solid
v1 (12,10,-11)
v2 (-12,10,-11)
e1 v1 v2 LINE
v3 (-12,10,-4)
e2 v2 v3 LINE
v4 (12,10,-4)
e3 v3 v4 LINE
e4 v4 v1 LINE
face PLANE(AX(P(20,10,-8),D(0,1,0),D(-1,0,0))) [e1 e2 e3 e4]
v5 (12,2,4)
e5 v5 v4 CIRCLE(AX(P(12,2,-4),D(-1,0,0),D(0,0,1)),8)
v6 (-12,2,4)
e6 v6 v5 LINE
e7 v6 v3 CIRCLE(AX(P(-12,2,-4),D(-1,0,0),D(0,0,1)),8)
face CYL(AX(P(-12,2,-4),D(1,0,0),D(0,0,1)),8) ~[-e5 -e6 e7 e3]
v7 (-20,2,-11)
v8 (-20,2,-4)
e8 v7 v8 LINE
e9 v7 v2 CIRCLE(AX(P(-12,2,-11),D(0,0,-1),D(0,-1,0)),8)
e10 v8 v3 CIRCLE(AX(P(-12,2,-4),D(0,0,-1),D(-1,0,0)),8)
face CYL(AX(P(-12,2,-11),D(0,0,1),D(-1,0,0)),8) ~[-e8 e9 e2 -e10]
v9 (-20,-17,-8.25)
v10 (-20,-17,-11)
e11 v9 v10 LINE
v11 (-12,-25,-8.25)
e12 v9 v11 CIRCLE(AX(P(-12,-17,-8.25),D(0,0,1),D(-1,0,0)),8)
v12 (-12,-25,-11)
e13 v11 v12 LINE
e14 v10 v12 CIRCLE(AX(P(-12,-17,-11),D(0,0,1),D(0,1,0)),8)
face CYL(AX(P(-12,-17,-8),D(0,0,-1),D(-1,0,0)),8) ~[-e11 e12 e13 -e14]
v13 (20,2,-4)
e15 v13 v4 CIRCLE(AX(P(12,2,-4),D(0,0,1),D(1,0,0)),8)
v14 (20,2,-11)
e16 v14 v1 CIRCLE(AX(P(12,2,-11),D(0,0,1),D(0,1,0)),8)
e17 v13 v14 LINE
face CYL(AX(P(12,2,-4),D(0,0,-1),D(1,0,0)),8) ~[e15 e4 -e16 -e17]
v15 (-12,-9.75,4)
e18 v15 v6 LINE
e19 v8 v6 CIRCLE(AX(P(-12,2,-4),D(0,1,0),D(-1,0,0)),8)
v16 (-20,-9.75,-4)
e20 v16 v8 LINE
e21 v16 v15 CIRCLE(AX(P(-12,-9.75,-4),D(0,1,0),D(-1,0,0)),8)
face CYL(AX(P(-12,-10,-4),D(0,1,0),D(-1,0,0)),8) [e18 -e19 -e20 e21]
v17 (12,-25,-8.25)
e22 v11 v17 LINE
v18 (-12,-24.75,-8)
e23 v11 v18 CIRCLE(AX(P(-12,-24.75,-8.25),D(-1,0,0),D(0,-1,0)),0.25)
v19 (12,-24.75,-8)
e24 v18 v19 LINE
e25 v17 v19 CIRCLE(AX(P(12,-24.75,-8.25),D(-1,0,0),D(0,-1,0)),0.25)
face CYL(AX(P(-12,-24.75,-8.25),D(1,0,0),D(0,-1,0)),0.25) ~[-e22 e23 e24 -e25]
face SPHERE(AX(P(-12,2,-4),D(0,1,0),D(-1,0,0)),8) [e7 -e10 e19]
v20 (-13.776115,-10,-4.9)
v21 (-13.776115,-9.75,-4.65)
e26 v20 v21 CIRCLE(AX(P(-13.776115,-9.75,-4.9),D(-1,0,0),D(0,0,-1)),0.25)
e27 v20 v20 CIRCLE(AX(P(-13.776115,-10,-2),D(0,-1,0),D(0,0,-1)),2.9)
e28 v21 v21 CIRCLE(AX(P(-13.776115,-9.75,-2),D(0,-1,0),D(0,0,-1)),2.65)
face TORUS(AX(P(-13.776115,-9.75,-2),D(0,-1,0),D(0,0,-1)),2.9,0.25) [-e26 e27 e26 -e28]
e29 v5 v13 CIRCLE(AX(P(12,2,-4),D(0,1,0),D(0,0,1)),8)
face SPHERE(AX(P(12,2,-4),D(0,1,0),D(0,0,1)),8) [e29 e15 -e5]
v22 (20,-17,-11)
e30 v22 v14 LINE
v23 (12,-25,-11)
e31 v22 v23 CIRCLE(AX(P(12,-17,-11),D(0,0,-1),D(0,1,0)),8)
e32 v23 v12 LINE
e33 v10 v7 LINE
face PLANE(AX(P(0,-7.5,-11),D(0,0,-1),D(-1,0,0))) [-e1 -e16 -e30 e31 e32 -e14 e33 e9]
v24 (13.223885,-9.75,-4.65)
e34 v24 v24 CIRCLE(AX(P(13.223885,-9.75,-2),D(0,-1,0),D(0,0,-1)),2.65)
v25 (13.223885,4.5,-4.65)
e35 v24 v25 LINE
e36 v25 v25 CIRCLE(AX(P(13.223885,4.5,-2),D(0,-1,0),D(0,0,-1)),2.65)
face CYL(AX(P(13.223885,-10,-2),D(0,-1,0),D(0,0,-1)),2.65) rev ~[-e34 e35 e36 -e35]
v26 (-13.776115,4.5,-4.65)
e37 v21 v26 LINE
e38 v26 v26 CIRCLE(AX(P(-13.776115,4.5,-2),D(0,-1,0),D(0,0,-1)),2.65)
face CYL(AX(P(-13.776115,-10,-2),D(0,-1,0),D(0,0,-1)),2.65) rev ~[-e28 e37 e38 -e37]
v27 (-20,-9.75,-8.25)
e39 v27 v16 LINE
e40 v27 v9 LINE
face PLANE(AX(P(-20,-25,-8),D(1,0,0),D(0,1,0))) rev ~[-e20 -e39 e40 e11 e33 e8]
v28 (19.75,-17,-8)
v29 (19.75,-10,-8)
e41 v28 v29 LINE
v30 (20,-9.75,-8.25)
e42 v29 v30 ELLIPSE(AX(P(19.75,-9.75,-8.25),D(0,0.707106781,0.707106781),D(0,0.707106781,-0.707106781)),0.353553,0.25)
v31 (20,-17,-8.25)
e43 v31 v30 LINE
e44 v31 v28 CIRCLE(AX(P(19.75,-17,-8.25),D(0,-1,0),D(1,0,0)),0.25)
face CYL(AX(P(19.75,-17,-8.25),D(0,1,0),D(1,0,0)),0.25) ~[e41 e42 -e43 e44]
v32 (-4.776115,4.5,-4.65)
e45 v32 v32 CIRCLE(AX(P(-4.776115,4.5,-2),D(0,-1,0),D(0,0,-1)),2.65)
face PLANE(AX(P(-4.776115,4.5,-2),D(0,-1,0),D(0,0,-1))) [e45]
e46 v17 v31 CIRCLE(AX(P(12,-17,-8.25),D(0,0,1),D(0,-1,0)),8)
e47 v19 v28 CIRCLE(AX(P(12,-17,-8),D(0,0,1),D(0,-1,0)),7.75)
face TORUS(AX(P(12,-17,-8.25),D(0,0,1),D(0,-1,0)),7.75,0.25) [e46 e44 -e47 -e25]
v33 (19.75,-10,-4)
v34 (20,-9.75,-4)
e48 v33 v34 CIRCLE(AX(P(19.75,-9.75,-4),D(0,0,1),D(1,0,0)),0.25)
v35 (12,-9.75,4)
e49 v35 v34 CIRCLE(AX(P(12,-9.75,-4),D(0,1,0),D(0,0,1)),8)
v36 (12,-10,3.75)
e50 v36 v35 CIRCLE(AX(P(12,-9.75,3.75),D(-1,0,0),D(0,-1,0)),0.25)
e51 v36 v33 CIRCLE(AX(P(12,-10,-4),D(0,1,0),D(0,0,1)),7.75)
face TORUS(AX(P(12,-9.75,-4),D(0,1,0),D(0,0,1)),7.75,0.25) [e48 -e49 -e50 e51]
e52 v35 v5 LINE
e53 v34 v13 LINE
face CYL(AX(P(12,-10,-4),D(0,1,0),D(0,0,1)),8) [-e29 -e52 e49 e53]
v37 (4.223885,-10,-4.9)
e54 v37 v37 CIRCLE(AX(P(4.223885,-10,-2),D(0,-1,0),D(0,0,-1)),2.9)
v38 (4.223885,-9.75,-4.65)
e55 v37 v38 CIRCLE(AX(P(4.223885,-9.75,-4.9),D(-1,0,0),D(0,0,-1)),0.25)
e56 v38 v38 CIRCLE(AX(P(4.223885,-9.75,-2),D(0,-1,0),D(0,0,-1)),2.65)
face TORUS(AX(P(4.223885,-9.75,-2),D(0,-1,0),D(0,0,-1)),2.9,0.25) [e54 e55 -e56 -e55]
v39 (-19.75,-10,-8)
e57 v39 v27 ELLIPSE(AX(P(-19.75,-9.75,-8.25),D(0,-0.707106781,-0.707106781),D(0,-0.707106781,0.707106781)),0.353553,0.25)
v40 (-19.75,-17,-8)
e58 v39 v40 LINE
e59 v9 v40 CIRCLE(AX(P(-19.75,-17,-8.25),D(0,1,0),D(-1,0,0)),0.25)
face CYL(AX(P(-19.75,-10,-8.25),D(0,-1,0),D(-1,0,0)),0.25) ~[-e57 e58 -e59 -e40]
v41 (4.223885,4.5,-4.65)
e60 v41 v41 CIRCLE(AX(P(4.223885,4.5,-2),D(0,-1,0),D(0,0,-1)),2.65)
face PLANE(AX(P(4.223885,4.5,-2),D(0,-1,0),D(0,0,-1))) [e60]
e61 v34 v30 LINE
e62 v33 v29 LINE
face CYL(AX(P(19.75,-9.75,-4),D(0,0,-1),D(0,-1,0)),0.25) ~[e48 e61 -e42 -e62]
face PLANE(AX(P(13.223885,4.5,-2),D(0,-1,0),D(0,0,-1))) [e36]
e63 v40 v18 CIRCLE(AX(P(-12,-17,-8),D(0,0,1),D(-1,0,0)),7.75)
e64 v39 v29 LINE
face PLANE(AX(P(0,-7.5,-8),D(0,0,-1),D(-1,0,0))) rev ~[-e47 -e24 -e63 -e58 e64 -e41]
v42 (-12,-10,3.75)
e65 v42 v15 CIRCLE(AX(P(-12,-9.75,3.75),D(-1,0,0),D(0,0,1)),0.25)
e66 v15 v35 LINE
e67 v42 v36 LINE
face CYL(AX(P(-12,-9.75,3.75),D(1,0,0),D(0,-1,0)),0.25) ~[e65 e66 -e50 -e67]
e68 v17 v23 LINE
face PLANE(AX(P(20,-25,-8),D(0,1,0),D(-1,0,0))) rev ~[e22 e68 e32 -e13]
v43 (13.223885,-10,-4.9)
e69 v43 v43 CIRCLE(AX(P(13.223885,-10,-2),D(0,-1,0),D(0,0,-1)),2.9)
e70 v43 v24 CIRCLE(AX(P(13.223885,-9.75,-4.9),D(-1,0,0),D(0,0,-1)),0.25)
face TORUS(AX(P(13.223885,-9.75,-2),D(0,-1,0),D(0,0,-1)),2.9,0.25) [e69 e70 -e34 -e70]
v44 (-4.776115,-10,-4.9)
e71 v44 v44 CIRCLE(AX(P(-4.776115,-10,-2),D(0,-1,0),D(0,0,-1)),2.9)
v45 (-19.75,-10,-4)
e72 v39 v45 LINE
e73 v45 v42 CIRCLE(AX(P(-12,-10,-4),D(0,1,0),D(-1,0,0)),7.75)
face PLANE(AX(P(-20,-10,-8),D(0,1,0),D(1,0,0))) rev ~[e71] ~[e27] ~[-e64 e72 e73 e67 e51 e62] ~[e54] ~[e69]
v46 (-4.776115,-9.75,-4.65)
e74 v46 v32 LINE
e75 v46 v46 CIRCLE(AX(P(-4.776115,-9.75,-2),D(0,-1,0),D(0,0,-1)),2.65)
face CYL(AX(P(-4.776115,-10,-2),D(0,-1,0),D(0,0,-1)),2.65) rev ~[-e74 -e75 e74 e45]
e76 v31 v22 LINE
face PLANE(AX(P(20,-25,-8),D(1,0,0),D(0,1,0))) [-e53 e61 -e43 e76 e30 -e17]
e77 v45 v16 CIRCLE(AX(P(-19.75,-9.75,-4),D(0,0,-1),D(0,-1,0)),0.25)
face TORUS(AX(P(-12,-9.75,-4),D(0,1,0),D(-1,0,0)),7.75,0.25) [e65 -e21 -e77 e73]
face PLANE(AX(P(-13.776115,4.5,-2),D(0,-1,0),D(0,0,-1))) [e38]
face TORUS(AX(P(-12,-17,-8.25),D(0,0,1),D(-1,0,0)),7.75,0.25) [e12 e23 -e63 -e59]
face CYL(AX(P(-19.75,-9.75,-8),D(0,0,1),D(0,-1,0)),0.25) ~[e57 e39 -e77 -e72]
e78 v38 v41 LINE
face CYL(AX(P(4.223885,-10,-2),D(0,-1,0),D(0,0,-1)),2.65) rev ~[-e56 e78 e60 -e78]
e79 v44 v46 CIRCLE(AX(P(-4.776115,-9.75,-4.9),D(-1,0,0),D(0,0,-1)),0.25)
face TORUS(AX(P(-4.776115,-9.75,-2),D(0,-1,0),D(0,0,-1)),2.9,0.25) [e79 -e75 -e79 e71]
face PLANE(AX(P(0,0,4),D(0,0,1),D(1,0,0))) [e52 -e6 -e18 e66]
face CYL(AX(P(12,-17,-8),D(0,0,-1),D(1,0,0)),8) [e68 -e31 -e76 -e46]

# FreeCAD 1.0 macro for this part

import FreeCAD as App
import Part
import Sketcher
from FreeCAD import Vector
Q = App.Units.Quantity


def edges_at(feature, points):
    """Names of the edges that pass closest to the given points."""
    edges = feature.Shape.Edges
    near = lambda p: min(range(len(edges)), key=lambda i: edges[i].distToShape(Part.Vertex(*p))[0])
    return sorted({f"Edge{near(p) + 1}" for p in points})


def add_polygon(sketch, points):
    """Adds a closed chain of lines whose ends are joined by coincident constraints."""
    first, n = sketch.GeometryCount, len(points)
    for a, b in zip(points, points[1:] + points[:1]):
        sketch.addGeometry(Part.LineSegment(App.Vector(*a, 0), App.Vector(*b, 0)), False)
    for i in range(n):
        sketch.addConstraint(Sketcher.Constraint("Coincident", first + i, 2, first + (i + 1) % n, 1))

doc = App.newDocument("Part")
body = doc.addObject("PartDesign::Body", "Body")

# Sketch on XY plane
sketch1 = doc.addObject("Sketcher::SketchObject", "Sketch")
body.addObject(sketch1)
sketch1.AttachmentSupport = (doc.XY_Plane, [""])
sketch1.MapMode = "FlatFace"
add_polygon(sketch1, [(-20, 10), (-20, -10), (20, -10), (20, 10)])  # lines 0-3
sketch1.addConstraint([
    Sketcher.Constraint("Vertical", 0),
    Sketcher.Constraint("Horizontal", 1),
    Sketcher.Constraint("Vertical", 2),
    Sketcher.Constraint("Horizontal", 3),
    Sketcher.Constraint("Symmetric", 0, 2, 2, 2, -1, 1),
    Sketcher.Constraint("DistanceX", 1, 1, 1, 2, Q("40 mm")),
    Sketcher.Constraint("DistanceY", 0, 2, 0, 1, Q("20 mm")),
])
pad1 = doc.addObject("PartDesign::Pad", "Pad")
body.addObject(pad1)
pad1.Profile = sketch1
pad1.Type = "TwoLengths"
pad1.Length = 4
pad1.Length2 = 8

# Sketch on XZ plane
sketch2 = doc.addObject("Sketcher::SketchObject", "Sketch001")
body.addObject(sketch2)
sketch2.AttachmentSupport = (doc.XZ_Plane, [""])
sketch2.MapMode = "FlatFace"
sketch2.AttachmentOffset = App.Placement(Vector(0, 0, 10), App.Rotation())
sketch2.addGeometry([
    Part.Circle(Vector(-13.8, -2, 0), Vector(0, 0, 1), 2.6),
    Part.Circle(Vector(-4.8, -2, 0), Vector(0, 0, 1), 2.6),
    Part.Circle(Vector(4.2, -2, 0), Vector(0, 0, 1), 2.6),
    Part.Circle(Vector(13.2, -2, 0), Vector(0, 0, 1), 2.6),
], False)
sketch2.addConstraint([
    Sketcher.Constraint("Equal", 0, 1),
    Sketcher.Constraint("Equal", 1, 2),
    Sketcher.Constraint("Equal", 2, 3),
    Sketcher.Constraint("Horizontal", 0, 3, 1, 3),
    Sketcher.Constraint("Horizontal", 1, 3, 2, 3),
    Sketcher.Constraint("Horizontal", 2, 3, 3, 3),
    Sketcher.Constraint("Diameter", 0, Q("5.3 mm")),
    Sketcher.Constraint("DistanceY", 0, 3, -1, 1, Q("2 mm")),
    Sketcher.Constraint("DistanceX", 0, 3, 1, 3, Q("9 mm")),
    Sketcher.Constraint("DistanceX", 1, 3, 2, 3, Q("9 mm")),
    Sketcher.Constraint("DistanceX", 2, 3, 3, 3, Q("9 mm")),
    Sketcher.Constraint("DistanceX", 0, 3, -1, 1, Q("13.776115 mm")),
])
pocket1 = doc.addObject("PartDesign::Pocket", "Pocket")
body.addObject(pocket1)
pocket1.Profile = sketch2
pocket1.Length = 14.5
doc.recompute()

fillet = doc.addObject("PartDesign::Fillet", "Fillet")
body.addObject(fillet)
fillet.Base = (pocket1, edges_at(pocket1, [(20, 0, 4), (-20, 0, 4)]))
fillet.Radius = 8
doc.recompute()

fillet2 = doc.addObject("PartDesign::Fillet", "Fillet001")
body.addObject(fillet2)
fillet2.Base = (fillet, edges_at(fillet, [
    (-13.776, -10, 0.65),
    (-4.776, -10, 0.65),
    (4.224, -10, 0.65),
    (13.224, -10, 0.65),
]))
fillet2.Radius = 0.25

# Sketch on XY plane
sketch3 = doc.addObject("Sketcher::SketchObject", "Sketch002")
body.addObject(sketch3)
sketch3.AttachmentSupport = (doc.XY_Plane, [""])
sketch3.MapMode = "FlatFace"
sketch3.AttachmentOffset = App.Placement(Vector(0, 0, -8), App.Rotation())
add_polygon(sketch3, [(20, 10), (20, -25), (-20, -25), (-20, 10)])  # lines 0-3
sketch3.addConstraint([
    Sketcher.Constraint("Vertical", 0),
    Sketcher.Constraint("Horizontal", 1),
    Sketcher.Constraint("Vertical", 2),
    Sketcher.Constraint("Horizontal", 3),
    Sketcher.Constraint("DistanceX", 1, 2, 1, 1, Q("40 mm")),
    Sketcher.Constraint("DistanceY", 0, 2, 0, 1, Q("35 mm")),
    Sketcher.Constraint("DistanceX", -1, 1, 0, 2, Q("20 mm")),
    Sketcher.Constraint("DistanceY", 0, 2, -1, 1, Q("25 mm")),
])
pad2 = doc.addObject("PartDesign::Pad", "Pad001")
body.addObject(pad2)
pad2.Profile = sketch3
pad2.Length = 3
pad2.Reversed = True
doc.recompute()

fillet3 = doc.addObject("PartDesign::Fillet", "Fillet002")
body.addObject(fillet3)
fillet3.Base = (pad2, edges_at(pad2, [
    (0, 10, 4),
    (17.657, 10, 1.657),
    (-17.657, 10, 1.657),
    (-20, -25, -9.5),
    (20, -25, -9.5),
    (-20, 10, -7.5),
    (20, 10, -7.5),
]))
fillet3.Radius = 8
doc.recompute()

fillet4 = doc.addObject("PartDesign::Fillet", "Fillet003")
body.addObject(fillet4)
fillet4.Base = (fillet3, edges_at(fillet3, [
    (0, -10, 4),
    (17.657, -10, 1.657),
    (-17.657, -10, 1.657),
    (20, -13.5, -8),
    (20, -10, -6),
    (-20, -10, -6),
    (-20, -13.5, -8),
    (0, -25, -8),
    (17.657, -22.657, -8),
    (-17.657, -22.657, -8),
]))
fillet4.Radius = 0.25

doc.recompute()
